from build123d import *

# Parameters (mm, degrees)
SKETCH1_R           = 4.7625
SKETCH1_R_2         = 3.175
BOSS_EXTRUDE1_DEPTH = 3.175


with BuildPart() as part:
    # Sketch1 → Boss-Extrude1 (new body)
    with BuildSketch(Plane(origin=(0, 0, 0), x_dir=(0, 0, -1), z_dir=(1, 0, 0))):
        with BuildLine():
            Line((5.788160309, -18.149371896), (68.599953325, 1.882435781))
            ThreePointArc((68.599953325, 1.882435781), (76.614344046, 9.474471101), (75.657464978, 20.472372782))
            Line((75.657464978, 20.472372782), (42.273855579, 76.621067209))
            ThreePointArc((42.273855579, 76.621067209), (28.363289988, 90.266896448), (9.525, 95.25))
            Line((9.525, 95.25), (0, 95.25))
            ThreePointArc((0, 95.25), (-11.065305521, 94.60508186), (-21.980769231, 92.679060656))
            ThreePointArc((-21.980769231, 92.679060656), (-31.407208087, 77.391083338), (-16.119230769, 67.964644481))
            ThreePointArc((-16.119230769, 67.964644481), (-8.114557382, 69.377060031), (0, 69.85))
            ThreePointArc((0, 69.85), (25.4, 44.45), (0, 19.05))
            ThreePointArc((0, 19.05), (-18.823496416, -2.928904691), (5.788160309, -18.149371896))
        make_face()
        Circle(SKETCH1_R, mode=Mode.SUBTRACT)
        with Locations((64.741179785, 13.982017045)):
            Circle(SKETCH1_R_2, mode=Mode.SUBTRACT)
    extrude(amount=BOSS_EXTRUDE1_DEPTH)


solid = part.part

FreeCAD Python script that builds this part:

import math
import FreeCAD as App
import Part
import Sketcher
Q = App.Units.Quantity

doc = App.newDocument("Part")
body = doc.addObject("PartDesign::Body", "Body")

# Sketch on YZ plane
sketch1 = doc.addObject("Sketcher::SketchObject", "Sketch")
body.addObject(sketch1)
sketch1.AttachmentSupport = (doc.YZ_Plane, [""])
sketch1.MapMode = "FlatFace"
sketch1.addGeometry(Part.LineSegment(App.Vector(-18.1, -5.8, 0), App.Vector(1.9, -68.6, 0)), False)
sketch1.addGeometry(Part.ArcOfCircle(Part.Circle(App.Vector(14, -64.7, 0), App.Vector(0, 0, 1), 12.7), math.radians(-162), math.radians(-59)), False)
sketch1.addGeometry(Part.LineSegment(App.Vector(20.5, -75.7, 0), App.Vector(76.6, -42.3, 0)), False)
sketch1.addGeometry(Part.ArcOfCircle(Part.Circle(App.Vector(57.2, -9.5, 0), App.Vector(0, 0, 1), 38.1), math.radians(-59), math.radians(0)), False)
sketch1.addGeometry(Part.LineSegment(App.Vector(95.2, -9.5, 0), App.Vector(95.2, 0, 0)), False)
sketch1.addGeometry(Part.ArcOfCircle(Part.Circle(App.Vector(0, 0, 0), App.Vector(0, 0, 1), 95.3), math.radians(0), math.radians(13.34)), False)
sketch1.addGeometry(Part.ArcOfCircle(Part.Circle(App.Vector(80.3, 19, 0), App.Vector(0, 0, 1), 12.7), math.radians(13), math.radians(193)), False)
sketch1.addGeometry(Part.ArcOfCircle(Part.Circle(App.Vector(0, 0, 0), App.Vector(0, 0, 1), 69.8), math.radians(0), math.radians(13.34)), False)
sketch1.addGeometry(Part.ArcOfCircle(Part.Circle(App.Vector(44.5, 0, 0), App.Vector(0, 0, 1), 25.4), math.radians(180), math.radians(360)), False)
sketch1.addGeometry(Part.ArcOfCircle(Part.Circle(App.Vector(0, 0, 0), App.Vector(0, 0, 1), 19.1), math.radians(0), math.radians(198)), False)
sketch1.addGeometry(Part.Circle(App.Vector(0, 0, 0), App.Vector(0, 0, 1), 4.8), False)
sketch1.addGeometry(Part.Circle(App.Vector(14, -64.7, 0), App.Vector(0, 0, 1), 3.2), False)
sketch1.addConstraint(Sketcher.Constraint("Tangent", 0, 2, 1, 1))
sketch1.addConstraint(Sketcher.Constraint("Tangent", 1, 2, 2, 1))
sketch1.addConstraint(Sketcher.Constraint("Tangent", 2, 2, 3, 1))
sketch1.addConstraint(Sketcher.Constraint("Tangent", 3, 2, 4, 1))
sketch1.addConstraint(Sketcher.Constraint("Tangent", 4, 2, 5, 1))
sketch1.addConstraint(Sketcher.Constraint("Tangent", 5, 2, 6, 1))
sketch1.addConstraint(Sketcher.Constraint("Tangent", 6, 2, 7, 2))
sketch1.addConstraint(Sketcher.Constraint("Tangent", 7, 1, 8, 2))
sketch1.addConstraint(Sketcher.Constraint("Tangent", 8, 1, 9, 1))
sketch1.addConstraint(Sketcher.Constraint("Tangent", 9, 2, 0, 1))
sketch1.addConstraint(Sketcher.Constraint("Vertical", 4))
sketch1.addConstraint(Sketcher.Constraint("Coincident", 5, 3, -1, 1))
sketch1.addConstraint(Sketcher.Constraint("Coincident", 7, 3, -1, 1))
sketch1.addConstraint(Sketcher.Constraint("Coincident", 9, 3, -1, 1))
sketch1.addConstraint(Sketcher.Constraint("Coincident", 10, 3, -1, 1))
sketch1.addConstraint(Sketcher.Constraint("Coincident", 11, 3, 1, 3))
sketch1.addConstraint(Sketcher.Constraint("Equal", 1, 6))
sketch1.addConstraint(Sketcher.Constraint("PointOnObject", 8, 3, -1))
sketch1.addConstraint(Sketcher.Constraint("Radius", 8, Q("1 in")))
sketch1.addConstraint(Sketcher.Constraint("Radius", 1, Q("0.5 in")))
sketch1.addConstraint(Sketcher.Constraint("Radius", 3, Q("1.5 in")))
sketch1.addConstraint(Sketcher.Constraint("Diameter", 11, Q("0.25 in")))
sketch1.addConstraint(Sketcher.Constraint("Radius", 5, Q("3.75 in")))
sketch1.addConstraint(Sketcher.Constraint("Diameter", 10, Q("0.375 in")))
sketch1.addConstraint(Sketcher.Constraint("DistanceY", 4, 1, 4, 2, Q("0.375 in")))
sketch1.addConstraint(Sketcher.Constraint("DistanceY", -1, 1, 6, 3, Q("0.75 in")))
sketch1.addConstraint(Sketcher.Constraint("Distance", 0, Q("65.928709 mm")))
sketch1.addConstraint(Sketcher.Constraint("Distance", 2, Q("65.323359 mm")))
pad1 = doc.addObject("PartDesign::Pad", "Pad")
body.addObject(pad1)
pad1.Profile = sketch1
pad1.Length = Q("0.125 in")

doc.recompute()
